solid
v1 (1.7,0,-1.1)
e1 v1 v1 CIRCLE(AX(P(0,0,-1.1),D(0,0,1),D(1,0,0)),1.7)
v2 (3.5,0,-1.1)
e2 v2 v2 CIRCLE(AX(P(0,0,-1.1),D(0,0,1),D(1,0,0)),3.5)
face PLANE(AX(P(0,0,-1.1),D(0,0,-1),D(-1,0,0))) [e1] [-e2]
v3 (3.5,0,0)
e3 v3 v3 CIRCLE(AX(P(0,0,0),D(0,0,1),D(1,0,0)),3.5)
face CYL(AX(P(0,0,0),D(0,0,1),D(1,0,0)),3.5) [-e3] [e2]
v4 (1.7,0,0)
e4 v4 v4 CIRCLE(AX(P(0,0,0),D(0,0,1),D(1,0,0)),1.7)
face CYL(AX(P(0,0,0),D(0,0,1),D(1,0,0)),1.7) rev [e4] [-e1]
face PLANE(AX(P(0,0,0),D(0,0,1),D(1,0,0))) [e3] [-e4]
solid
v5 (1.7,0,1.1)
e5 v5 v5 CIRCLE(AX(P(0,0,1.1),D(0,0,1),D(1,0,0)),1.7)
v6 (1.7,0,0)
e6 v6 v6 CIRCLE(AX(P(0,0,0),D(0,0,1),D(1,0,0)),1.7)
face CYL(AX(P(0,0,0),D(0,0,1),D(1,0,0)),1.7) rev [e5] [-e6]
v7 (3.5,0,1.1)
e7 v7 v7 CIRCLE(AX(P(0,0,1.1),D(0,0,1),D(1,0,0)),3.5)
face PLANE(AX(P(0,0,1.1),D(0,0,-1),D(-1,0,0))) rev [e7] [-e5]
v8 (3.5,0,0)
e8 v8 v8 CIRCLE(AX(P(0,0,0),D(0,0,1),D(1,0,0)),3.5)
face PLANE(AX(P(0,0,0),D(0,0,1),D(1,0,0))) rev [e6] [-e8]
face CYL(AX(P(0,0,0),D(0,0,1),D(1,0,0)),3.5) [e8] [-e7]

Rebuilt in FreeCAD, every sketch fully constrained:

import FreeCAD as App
import Part
import Sketcher

V = App.Vector
Q = App.Units.Quantity


def add_polygon(sketch, points):
    """Adds a closed chain of lines whose ends are joined by coincident constraints."""
    first, n = sketch.GeometryCount, len(points)
    for a, b in zip(points, points[1:] + points[:1]):
        sketch.addGeometry(Part.LineSegment(App.Vector(*a, 0), App.Vector(*b, 0)), False)
    for i in range(n):
        sketch.addConstraint(Sketcher.Constraint("Coincident", first + i, 2, first + (i + 1) % n, 1))

doc = App.newDocument("Part")
params = doc.addObject("Spreadsheet::Sheet", "Params")
for row, (alias, value) in enumerate([
    ("sketch1_width", "1.8 mm"),
    ("sketch1_height", "1.1 mm"),
    ("revolution_angle", "360 deg"),
    ("sketch2_width", "1.8 mm"),
    ("sketch2_height", "1.1 mm"),
    ("revolution2_angle", "360 deg"),
], start=1):
    params.set(f"A{row}", alias)
    params.set(f"B{row}", "=" + value)
    params.setAlias(f"B{row}", alias)

body = doc.addObject("PartDesign::Body", "Body")

# Sketch on YZ plane
sketch1 = body.newObject("Sketcher::SketchObject", "Sketch")
sketch1.AttachmentSupport = (doc.getObject("YZ_Plane"), [""])
sketch1.MapMode = "FlatFace"
add_polygon(sketch1, [(3.5, 1.1), (1.7, 1.1), (1.7, 0), (3.5, 0)])  # lines 0-3
sketch1.addConstraint(Sketcher.Constraint("Horizontal", 0))
sketch1.addConstraint(Sketcher.Constraint("Vertical", 1))
sketch1.addConstraint(Sketcher.Constraint("Horizontal", 2))
sketch1.addConstraint(Sketcher.Constraint("Vertical", 3))
sketch1.addConstraint(Sketcher.Constraint("PointOnObject", 1, 2, -1))
sketch1.addConstraint(Sketcher.Constraint("DistanceX", 0, 2, 0, 1, Q("1.8 mm")))
sketch1.addConstraint(Sketcher.Constraint("DistanceY", 1, 2, 1, 1, Q("1.1 mm")))
sketch1.addConstraint(Sketcher.Constraint("DistanceX", -1, 1, 0, 2, Q("1.7 mm")))
sketch1.setExpression("Constraints[9]", "Params.sketch1_width")
sketch1.setExpression("Constraints[10]", "Params.sketch1_height")
revolution = body.newObject("PartDesign::Revolution", "Revolution")
revolution.Profile = sketch1
revolution.ReferenceAxis = (sketch1, ["V_Axis"])
revolution.setExpression("Angle", "Params.revolution_angle")
body2 = doc.addObject("PartDesign::Body", "Body001")

# Sketch on YZ plane
sketch2 = body2.newObject("Sketcher::SketchObject", "Sketch001")
sketch2.AttachmentSupport = (doc.getObject("YZ_Plane001"), [""])
sketch2.MapMode = "FlatFace"
add_polygon(sketch2, [(3.5, 0), (1.7, 0), (1.7, -1.1), (3.5, -1.1)])  # lines 0-3
sketch2.addConstraint(Sketcher.Constraint("Horizontal", 0))
sketch2.addConstraint(Sketcher.Constraint("Vertical", 1))
sketch2.addConstraint(Sketcher.Constraint("Horizontal", 2))
sketch2.addConstraint(Sketcher.Constraint("Vertical", 3))
sketch2.addConstraint(Sketcher.Constraint("PointOnObject", 0, 2, -1))
sketch2.addConstraint(Sketcher.Constraint("DistanceX", 0, 2, 0, 1, Q("1.8 mm")))
sketch2.addConstraint(Sketcher.Constraint("DistanceY", 1, 2, 1, 1, Q("1.1 mm")))
sketch2.addConstraint(Sketcher.Constraint("DistanceX", -1, 1, 0, 2, Q("1.7 mm")))
sketch2.setExpression("Constraints[9]", "Params.sketch2_width")
sketch2.setExpression("Constraints[10]", "Params.sketch2_height")
revolution2 = body2.newObject("PartDesign::Revolution", "Revolution001")
revolution2.Profile = sketch2
revolution2.ReferenceAxis = (sketch2, ["V_Axis"])
revolution2.setExpression("Angle", "Params.revolution2_angle")

doc.recompute()
